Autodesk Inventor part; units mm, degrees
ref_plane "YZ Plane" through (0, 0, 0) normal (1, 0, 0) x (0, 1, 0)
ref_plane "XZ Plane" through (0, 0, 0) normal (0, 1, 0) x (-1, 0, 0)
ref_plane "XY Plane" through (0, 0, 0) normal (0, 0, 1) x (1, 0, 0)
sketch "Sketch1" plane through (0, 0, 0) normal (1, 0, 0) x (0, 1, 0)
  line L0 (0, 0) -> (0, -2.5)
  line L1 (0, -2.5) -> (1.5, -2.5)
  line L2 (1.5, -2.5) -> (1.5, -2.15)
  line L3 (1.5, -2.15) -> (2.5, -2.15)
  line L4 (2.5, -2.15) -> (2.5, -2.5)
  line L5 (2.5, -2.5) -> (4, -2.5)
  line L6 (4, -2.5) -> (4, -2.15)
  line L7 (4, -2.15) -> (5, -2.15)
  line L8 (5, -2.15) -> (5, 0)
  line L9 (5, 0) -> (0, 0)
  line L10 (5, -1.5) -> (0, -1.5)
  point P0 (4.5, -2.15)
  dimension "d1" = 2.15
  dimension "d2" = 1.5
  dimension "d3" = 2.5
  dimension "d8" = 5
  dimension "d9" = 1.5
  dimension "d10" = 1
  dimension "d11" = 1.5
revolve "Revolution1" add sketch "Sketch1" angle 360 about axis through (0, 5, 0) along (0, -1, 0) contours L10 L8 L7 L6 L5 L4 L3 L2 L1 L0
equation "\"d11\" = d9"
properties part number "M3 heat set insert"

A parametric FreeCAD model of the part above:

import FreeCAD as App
import Part
import Sketcher
from FreeCAD import Vector
Q = App.Units.Quantity


def add_polygon(sketch, points):
    """Adds a closed chain of lines whose ends are joined by coincident constraints."""
    first, n = sketch.GeometryCount, len(points)
    for a, b in zip(points, points[1:] + points[:1]):
        sketch.addGeometry(Part.LineSegment(App.Vector(*a, 0), App.Vector(*b, 0)), False)
    for i in range(n):
        sketch.addConstraint(Sketcher.Constraint("Coincident", first + i, 2, first + (i + 1) % n, 1))

doc = App.newDocument("Part")
body = doc.addObject("PartDesign::Body", "Body")

sketch1 = body.newObject("Sketcher::SketchObject", "Sketch")
sketch1.AttachmentSupport = (doc.getObject("YZ_Plane"), [""])
sketch1.MapMode = "FlatFace"
add_polygon(sketch1, [(5, -1.5), (0, -1.5), (0, -2.5), (1.5, -2.5), (1.5, -2.15), (2.5, -2.15), (2.5, -2.5), (4, -2.5), (4, -2.15), (5, -2.15)])
sketch1.addConstraint([
    Sketcher.Constraint("Horizontal", 0),
    Sketcher.Constraint("Vertical", 1),
    Sketcher.Constraint("Horizontal", 2),
    Sketcher.Constraint("Vertical", 3),
    Sketcher.Constraint("Horizontal", 4),
    Sketcher.Constraint("Vertical", 5),
    Sketcher.Constraint("Horizontal", 6),
    Sketcher.Constraint("Vertical", 7),
    Sketcher.Constraint("Horizontal", 8),
    Sketcher.Constraint("Vertical", 9),
    Sketcher.Constraint("PointOnObject", 0, 2, -2),
    Sketcher.Constraint("Horizontal", 2, 2, 5, 2),
    Sketcher.Constraint("Horizontal", 4, 2, 7, 2),
    Sketcher.Constraint("Equal", 2, 6),
    Sketcher.Constraint("Equal", 4, 8),
    Sketcher.Constraint("Equal", 8, 1),
    Sketcher.Constraint("DistanceX", 0, 2, 0, 1, Q("5 mm")),
    Sketcher.Constraint("DistanceX", 4, 1, 4, 2, Q("1 mm")),
    Sketcher.Constraint("DistanceY", 0, 2, -1, 1, Q("1.5 mm")),
    Sketcher.Constraint("DistanceY", 3, 2, -1, 1, Q("2.15 mm")),
])
revolution = body.newObject("PartDesign::Revolution", "Revolution")
revolution.Profile = sketch1
revolution.ReferenceAxis = (sketch1, ["H_Axis"])
revolution.Angle = 360

doc.recompute()
